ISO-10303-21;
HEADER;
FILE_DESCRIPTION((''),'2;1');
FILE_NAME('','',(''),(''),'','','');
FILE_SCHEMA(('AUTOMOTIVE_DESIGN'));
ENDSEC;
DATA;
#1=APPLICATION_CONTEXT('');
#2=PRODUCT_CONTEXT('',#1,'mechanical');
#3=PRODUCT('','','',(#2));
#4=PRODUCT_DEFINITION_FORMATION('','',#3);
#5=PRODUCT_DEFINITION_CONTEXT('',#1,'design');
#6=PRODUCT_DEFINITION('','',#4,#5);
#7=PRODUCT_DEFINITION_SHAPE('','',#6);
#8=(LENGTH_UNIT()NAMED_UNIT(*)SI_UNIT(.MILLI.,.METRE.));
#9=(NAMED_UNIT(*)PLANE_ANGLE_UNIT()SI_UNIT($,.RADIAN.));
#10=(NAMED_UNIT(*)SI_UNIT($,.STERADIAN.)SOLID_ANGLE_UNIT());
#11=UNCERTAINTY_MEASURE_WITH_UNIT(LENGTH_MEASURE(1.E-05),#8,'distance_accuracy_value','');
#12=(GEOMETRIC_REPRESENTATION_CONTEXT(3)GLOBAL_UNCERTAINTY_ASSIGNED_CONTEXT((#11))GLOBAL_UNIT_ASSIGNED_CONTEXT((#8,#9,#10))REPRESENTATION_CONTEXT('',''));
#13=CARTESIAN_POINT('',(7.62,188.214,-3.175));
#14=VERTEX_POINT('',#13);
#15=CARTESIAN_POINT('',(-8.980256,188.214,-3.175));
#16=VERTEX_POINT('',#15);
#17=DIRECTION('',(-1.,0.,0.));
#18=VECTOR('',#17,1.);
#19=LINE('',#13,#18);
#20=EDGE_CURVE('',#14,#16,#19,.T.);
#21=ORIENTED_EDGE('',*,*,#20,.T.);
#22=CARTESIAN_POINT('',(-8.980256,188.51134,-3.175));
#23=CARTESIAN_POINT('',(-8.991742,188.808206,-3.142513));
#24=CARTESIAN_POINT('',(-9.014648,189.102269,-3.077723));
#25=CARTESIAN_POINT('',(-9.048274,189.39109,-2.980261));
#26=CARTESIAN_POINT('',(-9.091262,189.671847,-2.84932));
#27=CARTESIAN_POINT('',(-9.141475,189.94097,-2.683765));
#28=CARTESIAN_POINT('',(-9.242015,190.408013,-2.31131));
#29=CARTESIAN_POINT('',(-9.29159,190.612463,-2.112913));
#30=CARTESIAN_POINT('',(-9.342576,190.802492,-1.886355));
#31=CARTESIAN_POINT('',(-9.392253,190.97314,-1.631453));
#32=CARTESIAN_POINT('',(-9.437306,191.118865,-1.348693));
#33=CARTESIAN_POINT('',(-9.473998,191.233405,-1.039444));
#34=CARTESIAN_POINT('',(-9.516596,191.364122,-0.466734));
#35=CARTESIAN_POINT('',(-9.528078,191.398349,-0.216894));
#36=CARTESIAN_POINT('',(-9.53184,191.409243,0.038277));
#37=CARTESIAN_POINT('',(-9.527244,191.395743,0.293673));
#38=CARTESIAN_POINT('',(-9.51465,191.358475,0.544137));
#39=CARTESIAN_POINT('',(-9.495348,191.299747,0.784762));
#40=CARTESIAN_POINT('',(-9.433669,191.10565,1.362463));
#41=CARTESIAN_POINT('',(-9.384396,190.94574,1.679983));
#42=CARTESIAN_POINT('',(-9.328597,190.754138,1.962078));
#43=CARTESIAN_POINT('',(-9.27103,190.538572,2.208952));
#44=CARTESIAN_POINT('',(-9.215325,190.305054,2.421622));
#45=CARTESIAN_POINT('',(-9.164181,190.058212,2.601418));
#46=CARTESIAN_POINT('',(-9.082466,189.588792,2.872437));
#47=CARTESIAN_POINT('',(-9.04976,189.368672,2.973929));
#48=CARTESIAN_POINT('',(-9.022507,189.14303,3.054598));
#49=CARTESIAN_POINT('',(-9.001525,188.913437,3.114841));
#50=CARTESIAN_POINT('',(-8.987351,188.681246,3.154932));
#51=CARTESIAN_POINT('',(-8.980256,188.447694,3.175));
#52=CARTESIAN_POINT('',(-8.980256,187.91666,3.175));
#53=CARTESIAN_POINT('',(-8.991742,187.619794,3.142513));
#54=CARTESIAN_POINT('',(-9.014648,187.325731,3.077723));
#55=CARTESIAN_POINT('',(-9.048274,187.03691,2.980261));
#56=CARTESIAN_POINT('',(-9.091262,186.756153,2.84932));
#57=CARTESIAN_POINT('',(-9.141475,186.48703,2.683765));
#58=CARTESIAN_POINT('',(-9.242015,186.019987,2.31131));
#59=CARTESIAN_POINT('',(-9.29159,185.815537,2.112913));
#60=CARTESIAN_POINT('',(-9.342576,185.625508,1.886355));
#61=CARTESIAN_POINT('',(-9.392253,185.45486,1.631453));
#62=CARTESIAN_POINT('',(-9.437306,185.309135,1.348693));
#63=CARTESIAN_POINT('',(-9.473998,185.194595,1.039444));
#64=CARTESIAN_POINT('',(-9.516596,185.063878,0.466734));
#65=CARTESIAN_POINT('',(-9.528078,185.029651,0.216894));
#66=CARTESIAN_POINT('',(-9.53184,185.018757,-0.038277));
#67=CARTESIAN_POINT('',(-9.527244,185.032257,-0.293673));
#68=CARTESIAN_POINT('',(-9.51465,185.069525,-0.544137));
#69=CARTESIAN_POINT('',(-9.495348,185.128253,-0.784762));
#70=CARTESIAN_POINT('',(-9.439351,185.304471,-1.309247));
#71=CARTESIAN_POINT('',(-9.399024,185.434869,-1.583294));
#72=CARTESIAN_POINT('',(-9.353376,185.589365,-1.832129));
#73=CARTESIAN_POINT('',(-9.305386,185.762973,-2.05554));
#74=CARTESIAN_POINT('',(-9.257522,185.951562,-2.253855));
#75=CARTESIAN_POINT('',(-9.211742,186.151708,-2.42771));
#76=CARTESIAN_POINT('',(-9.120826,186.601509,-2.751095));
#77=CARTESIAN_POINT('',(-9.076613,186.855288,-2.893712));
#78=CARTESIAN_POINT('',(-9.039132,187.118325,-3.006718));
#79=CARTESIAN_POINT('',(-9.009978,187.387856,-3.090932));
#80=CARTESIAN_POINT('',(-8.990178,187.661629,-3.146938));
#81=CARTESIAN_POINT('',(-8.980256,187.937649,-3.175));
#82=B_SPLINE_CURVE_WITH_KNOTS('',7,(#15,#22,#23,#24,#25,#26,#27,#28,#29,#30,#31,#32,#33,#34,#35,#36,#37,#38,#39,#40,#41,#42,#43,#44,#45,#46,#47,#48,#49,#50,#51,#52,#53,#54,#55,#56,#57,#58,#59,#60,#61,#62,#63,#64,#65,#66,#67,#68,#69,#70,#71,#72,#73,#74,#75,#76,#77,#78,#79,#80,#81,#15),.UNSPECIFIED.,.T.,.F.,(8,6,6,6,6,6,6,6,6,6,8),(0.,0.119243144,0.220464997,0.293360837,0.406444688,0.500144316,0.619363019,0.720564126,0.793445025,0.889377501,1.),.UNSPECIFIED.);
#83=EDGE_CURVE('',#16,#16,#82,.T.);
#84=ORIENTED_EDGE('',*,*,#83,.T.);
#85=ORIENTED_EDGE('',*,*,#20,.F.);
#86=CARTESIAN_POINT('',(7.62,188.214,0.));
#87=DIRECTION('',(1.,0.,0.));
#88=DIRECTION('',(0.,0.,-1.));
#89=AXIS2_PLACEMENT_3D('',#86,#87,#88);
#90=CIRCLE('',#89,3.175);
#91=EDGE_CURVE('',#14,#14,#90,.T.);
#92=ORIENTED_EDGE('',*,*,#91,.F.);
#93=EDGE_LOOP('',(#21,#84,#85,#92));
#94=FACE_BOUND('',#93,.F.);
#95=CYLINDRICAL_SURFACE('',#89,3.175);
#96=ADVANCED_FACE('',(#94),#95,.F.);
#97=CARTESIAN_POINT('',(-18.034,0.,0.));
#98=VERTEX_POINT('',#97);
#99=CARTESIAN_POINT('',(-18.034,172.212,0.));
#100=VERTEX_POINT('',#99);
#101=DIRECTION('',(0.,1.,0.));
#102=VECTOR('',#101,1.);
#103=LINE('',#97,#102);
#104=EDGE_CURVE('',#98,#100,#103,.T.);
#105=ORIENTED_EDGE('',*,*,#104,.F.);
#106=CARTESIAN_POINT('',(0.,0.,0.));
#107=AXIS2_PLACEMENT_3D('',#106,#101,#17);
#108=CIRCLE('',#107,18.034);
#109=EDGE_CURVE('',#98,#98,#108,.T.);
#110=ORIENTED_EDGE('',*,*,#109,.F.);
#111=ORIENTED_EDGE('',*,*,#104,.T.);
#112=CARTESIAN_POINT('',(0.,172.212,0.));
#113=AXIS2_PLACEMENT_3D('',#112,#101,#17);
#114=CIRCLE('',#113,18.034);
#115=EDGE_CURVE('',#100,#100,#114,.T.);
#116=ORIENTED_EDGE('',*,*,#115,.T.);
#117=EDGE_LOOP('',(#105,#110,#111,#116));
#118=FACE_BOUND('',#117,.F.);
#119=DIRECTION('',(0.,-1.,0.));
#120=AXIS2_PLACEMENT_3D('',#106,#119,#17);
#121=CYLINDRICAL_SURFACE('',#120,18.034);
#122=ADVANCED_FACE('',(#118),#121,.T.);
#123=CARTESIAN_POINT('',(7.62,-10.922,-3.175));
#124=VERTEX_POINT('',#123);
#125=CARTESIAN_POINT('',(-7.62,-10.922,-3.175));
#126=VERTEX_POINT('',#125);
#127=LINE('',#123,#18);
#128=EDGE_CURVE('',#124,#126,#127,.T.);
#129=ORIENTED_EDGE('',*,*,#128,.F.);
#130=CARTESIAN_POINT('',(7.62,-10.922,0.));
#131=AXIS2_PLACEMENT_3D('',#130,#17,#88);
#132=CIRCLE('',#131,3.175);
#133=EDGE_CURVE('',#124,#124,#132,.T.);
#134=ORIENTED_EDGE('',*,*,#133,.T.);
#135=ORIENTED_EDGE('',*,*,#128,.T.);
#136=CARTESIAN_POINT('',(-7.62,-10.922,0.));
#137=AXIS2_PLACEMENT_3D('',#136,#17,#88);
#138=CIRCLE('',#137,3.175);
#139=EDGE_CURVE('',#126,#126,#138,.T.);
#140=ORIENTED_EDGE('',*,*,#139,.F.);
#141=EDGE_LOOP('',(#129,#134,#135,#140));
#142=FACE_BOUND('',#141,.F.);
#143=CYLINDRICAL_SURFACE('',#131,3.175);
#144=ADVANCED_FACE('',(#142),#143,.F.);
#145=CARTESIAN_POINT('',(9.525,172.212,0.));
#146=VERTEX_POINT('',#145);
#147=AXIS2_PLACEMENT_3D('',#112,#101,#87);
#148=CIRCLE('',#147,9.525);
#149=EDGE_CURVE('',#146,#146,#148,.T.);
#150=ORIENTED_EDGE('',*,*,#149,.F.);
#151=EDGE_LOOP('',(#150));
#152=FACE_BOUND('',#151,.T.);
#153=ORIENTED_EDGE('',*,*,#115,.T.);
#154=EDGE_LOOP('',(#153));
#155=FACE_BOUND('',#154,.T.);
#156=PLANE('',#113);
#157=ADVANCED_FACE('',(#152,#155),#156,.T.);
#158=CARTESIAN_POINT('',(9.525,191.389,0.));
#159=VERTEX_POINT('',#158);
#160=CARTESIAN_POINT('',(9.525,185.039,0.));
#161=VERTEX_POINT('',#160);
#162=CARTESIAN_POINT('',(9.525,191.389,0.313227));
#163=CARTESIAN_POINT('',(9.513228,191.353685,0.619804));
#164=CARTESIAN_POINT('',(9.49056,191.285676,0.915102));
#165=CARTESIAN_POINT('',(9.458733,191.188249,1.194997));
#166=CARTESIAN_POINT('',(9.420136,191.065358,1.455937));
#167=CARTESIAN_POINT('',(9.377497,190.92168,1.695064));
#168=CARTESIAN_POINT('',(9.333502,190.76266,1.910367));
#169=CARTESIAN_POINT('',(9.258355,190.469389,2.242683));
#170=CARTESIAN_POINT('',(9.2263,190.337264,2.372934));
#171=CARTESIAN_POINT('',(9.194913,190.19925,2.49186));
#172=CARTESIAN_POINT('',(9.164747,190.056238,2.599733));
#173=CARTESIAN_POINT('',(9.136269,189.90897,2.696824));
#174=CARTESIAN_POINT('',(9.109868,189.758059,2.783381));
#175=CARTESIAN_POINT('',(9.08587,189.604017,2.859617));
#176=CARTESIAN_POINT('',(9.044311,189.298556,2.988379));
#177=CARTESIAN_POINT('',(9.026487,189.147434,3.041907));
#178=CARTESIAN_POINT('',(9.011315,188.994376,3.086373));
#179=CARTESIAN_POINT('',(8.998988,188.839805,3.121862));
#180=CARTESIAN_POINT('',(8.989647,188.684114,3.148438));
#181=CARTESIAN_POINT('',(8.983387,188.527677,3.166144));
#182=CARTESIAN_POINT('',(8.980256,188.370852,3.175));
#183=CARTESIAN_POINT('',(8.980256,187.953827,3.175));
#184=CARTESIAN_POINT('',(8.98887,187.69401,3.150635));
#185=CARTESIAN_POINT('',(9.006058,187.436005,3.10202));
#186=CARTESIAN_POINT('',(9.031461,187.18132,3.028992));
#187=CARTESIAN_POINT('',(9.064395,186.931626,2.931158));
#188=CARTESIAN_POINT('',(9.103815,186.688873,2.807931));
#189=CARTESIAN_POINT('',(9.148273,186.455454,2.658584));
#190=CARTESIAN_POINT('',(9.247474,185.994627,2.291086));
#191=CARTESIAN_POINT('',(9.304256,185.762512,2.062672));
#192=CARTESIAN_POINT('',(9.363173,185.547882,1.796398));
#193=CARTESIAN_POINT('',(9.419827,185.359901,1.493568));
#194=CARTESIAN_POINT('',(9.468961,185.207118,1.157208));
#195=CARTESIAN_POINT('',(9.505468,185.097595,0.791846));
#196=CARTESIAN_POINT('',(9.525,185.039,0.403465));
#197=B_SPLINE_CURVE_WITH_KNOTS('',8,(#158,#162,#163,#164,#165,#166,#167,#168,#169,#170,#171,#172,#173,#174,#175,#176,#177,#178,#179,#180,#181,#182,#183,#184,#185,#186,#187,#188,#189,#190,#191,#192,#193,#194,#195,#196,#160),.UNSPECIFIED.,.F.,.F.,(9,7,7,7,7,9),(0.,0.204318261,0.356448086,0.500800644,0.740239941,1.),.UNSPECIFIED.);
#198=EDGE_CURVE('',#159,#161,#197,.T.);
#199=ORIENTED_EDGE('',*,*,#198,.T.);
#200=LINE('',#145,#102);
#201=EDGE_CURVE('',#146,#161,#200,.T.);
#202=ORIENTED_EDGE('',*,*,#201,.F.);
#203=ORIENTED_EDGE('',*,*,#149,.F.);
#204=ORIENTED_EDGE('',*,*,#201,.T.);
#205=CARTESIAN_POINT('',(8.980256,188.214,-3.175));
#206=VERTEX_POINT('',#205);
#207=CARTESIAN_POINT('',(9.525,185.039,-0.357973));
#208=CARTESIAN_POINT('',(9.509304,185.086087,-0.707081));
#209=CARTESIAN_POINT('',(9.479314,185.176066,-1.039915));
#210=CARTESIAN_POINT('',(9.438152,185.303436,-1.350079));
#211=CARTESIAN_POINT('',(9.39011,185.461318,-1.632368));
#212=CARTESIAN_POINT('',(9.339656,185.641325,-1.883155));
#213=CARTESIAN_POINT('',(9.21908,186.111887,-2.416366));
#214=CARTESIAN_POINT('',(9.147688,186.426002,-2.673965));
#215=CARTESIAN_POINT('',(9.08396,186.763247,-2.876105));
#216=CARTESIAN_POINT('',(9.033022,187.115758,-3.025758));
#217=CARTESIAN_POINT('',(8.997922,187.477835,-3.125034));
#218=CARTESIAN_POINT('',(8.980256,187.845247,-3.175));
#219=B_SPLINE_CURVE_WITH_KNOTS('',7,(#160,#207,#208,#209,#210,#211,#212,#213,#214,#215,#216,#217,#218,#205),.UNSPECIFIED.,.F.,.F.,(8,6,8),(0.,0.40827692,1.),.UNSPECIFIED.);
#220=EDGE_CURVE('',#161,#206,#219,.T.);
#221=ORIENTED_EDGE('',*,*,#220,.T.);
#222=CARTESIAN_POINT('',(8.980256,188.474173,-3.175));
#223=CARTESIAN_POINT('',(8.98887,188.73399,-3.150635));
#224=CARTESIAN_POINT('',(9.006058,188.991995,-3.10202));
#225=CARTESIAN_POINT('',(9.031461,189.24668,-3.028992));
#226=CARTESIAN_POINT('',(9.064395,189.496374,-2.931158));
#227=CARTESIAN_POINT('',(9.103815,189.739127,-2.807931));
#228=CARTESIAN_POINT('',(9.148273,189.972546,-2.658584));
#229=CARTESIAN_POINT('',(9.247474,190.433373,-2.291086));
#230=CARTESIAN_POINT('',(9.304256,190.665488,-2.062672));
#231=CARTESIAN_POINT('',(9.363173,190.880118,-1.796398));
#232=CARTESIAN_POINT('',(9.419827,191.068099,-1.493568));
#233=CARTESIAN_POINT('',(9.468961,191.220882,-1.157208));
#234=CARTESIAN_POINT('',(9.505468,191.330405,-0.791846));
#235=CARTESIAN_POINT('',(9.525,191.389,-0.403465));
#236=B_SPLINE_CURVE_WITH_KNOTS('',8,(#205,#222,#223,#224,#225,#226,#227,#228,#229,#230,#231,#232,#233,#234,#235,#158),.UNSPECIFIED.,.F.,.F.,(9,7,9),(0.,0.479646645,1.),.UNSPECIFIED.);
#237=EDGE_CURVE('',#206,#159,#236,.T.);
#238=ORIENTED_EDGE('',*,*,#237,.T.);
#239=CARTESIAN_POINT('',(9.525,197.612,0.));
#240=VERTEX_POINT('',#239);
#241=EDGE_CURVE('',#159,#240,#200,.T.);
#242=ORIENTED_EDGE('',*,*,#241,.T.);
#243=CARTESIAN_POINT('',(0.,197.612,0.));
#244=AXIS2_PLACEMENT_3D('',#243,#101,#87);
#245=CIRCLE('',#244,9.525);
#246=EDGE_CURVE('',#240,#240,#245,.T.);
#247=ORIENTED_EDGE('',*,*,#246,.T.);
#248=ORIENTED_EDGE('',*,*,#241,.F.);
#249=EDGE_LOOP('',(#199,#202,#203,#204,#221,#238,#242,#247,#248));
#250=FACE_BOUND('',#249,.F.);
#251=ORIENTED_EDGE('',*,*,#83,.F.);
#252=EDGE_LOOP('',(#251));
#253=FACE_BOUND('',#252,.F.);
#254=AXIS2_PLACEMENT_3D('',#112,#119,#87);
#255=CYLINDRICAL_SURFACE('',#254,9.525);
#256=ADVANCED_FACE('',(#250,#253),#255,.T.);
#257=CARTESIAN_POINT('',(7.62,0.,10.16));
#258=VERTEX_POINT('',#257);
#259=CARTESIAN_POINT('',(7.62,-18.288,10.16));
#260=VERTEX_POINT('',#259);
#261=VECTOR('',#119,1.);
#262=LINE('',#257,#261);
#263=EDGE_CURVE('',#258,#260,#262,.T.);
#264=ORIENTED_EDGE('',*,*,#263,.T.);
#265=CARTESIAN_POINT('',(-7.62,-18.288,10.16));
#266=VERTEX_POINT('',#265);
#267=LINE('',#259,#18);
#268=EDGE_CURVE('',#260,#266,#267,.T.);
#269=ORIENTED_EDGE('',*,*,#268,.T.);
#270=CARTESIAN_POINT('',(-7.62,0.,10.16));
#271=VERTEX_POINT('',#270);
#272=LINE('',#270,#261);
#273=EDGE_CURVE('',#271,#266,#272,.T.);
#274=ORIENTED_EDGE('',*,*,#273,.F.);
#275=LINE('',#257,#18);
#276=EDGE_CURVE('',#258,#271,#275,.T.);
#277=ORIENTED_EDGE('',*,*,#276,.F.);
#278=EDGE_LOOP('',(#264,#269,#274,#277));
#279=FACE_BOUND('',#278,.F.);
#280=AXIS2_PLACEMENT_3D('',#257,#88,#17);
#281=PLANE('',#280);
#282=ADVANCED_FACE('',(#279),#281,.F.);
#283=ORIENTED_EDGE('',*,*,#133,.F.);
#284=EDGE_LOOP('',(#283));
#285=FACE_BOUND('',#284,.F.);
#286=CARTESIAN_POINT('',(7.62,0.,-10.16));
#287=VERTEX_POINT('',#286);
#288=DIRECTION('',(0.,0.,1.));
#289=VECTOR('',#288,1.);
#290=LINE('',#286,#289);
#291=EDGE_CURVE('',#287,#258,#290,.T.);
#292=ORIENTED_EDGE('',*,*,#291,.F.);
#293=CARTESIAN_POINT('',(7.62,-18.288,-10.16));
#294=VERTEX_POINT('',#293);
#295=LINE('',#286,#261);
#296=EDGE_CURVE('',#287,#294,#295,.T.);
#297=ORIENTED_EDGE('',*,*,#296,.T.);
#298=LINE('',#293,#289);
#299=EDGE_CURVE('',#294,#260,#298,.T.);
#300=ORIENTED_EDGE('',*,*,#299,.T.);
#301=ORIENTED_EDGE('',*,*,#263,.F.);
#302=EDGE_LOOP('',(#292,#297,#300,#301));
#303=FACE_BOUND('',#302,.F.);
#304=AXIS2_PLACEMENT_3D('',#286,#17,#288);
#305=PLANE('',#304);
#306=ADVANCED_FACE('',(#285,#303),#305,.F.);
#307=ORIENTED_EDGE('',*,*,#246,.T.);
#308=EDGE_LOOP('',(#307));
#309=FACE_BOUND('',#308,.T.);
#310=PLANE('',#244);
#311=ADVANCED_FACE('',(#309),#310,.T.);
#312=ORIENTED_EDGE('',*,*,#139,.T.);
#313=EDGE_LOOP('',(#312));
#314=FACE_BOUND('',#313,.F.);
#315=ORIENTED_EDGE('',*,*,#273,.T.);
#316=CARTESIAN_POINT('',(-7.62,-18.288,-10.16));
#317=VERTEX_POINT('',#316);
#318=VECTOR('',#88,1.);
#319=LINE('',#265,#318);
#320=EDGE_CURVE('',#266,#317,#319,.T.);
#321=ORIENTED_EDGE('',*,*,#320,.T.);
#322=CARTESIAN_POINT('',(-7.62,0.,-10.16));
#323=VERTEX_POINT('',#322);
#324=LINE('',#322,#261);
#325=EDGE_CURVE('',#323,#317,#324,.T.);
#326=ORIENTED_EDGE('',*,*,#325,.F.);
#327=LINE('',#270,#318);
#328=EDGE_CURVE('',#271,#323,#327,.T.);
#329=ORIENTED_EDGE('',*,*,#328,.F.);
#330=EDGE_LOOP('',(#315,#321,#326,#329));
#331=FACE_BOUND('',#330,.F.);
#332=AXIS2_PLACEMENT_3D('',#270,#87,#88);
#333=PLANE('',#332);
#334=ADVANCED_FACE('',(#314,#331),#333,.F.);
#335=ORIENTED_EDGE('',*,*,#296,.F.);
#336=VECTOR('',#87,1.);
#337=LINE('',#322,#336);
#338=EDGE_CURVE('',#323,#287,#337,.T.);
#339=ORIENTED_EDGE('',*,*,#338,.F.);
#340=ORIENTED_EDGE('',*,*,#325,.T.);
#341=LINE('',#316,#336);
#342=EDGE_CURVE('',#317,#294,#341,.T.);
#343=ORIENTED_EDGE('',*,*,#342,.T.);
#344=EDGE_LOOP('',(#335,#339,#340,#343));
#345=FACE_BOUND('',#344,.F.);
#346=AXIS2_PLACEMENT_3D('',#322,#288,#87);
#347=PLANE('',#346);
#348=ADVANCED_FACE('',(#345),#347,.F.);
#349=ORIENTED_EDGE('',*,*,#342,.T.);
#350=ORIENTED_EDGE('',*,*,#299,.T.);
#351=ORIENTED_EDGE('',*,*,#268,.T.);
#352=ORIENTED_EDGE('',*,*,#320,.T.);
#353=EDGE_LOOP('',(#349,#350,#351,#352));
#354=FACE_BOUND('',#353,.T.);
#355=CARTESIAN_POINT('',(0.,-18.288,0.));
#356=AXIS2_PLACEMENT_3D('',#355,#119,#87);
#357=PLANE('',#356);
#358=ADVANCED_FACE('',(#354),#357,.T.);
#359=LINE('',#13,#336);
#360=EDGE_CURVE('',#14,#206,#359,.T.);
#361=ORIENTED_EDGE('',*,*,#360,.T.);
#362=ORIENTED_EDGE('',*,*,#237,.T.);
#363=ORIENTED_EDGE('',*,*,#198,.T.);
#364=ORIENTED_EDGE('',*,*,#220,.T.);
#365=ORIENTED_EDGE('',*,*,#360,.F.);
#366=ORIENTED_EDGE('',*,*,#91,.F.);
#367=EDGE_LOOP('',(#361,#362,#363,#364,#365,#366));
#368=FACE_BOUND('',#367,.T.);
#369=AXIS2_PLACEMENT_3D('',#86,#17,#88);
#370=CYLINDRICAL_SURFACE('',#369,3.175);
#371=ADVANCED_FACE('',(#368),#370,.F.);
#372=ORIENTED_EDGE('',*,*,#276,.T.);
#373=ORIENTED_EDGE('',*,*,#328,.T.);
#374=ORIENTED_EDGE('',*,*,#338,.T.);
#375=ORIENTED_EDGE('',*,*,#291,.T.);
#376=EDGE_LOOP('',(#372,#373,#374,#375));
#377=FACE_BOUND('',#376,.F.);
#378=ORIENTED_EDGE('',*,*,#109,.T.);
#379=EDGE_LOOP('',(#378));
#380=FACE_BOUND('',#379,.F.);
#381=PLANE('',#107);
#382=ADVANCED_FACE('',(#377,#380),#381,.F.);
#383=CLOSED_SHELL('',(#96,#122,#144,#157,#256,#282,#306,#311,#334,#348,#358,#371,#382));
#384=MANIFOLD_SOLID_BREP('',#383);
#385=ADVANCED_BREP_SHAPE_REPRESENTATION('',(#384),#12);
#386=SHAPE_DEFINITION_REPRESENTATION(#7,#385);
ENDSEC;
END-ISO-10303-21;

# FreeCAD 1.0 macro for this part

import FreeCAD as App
import Part
import Sketcher
Q = App.Units.Quantity


def add_polygon(sketch, points):
    """Adds a closed chain of lines whose ends are joined by coincident constraints."""
    first, n = sketch.GeometryCount, len(points)
    for a, b in zip(points, points[1:] + points[:1]):
        sketch.addGeometry(Part.LineSegment(App.Vector(*a, 0), App.Vector(*b, 0)), False)
    for i in range(n):
        sketch.addConstraint(Sketcher.Constraint("Coincident", first + i, 2, first + (i + 1) % n, 1))

doc = App.newDocument("Part")
params = doc.addObject("Spreadsheet::Sheet", "Params")
for row, (alias, value) in enumerate([
    ("sketch1_diameter", "1.42 in"),
    ("pad1_length", "6.78 in"),
    ("sketch2_diameter", "0.75 in"),
    ("pad2_length", "1 in"),
    ("sketch3_width", "0.6 in"),
    ("sketch3_height", "0.8 in"),
    ("pad3_length", "0.72 in"),
    ("sketch4_diameter", "0.25 in"),
    ("hole_diameter", "0.25 in"),
    ("sketch5_diameter", "0.25 in"),
    ("pocket1_length", "5 in"),
], start=1):
    params.set(f"A{row}", alias)
    params.set(f"B{row}", "=" + value)
    params.setAlias(f"B{row}", alias)

body = doc.addObject("PartDesign::Body", "Body")

# Sketch on XZ plane
sketch1 = body.newObject("Sketcher::SketchObject", "Sketch")
sketch1.AttachmentSupport = (doc.getObject("XZ_Plane"), [""])
sketch1.MapMode = "FlatFace"
sketch1.addGeometry(Part.Circle(App.Vector(0, 0, 0), App.Vector(0, 0, 1), 18), False)
sketch1.addConstraint(Sketcher.Constraint("Coincident", 0, 3, -1, 1))
sketch1.addConstraint(Sketcher.Constraint("Diameter", 0, Q("1.42 in")))
sketch1.setExpression("Constraints[1]", "Params.sketch1_diameter")
pad1 = body.newObject("PartDesign::Pad", "Pad")
pad1.Profile = sketch1
pad1.setExpression("Length", "Params.pad1_length")
pad1.Reversed = True

# Sketch on XZ plane
sketch2 = body.newObject("Sketcher::SketchObject", "Sketch001")
sketch2.AttachmentSupport = (doc.getObject("XZ_Plane"), [""])
sketch2.MapMode = "FlatFace"
sketch2.AttachmentOffset = App.Placement(App.Vector(0, 0, -6.78 * 25.4), App.Rotation())
sketch2.addGeometry(Part.Circle(App.Vector(0, 0, 0), App.Vector(0, 0, 1), 10), False)
sketch2.addConstraint(Sketcher.Constraint("Coincident", 0, 3, -1, 1))
sketch2.addConstraint(Sketcher.Constraint("Diameter", 0, Q("0.75 in")))
sketch2.setExpression("Constraints[1]", "Params.sketch2_diameter")
pad2 = body.newObject("PartDesign::Pad", "Pad001")
pad2.Profile = sketch2
pad2.setExpression("Length", "Params.pad2_length")
pad2.Reversed = True

# Sketch on XZ plane
sketch3 = body.newObject("Sketcher::SketchObject", "Sketch002")
sketch3.AttachmentSupport = (doc.getObject("XZ_Plane"), [""])
sketch3.MapMode = "FlatFace"
add_polygon(sketch3, [(-8, 10), (-8, -10), (8, -10), (8, 10)])  # lines 0-3
sketch3.addConstraint(Sketcher.Constraint("Vertical", 0))
sketch3.addConstraint(Sketcher.Constraint("Horizontal", 1))
sketch3.addConstraint(Sketcher.Constraint("Vertical", 2))
sketch3.addConstraint(Sketcher.Constraint("Horizontal", 3))
sketch3.addConstraint(Sketcher.Constraint("Symmetric", 0, 2, 2, 2, -1, 1))
sketch3.addConstraint(Sketcher.Constraint("DistanceX", 1, 1, 1, 2, Q("0.6 in")))
sketch3.addConstraint(Sketcher.Constraint("DistanceY", 0, 2, 0, 1, Q("0.8 in")))
sketch3.setExpression("Constraints[9]", "Params.sketch3_width")
sketch3.setExpression("Constraints[10]", "Params.sketch3_height")
pad3 = body.newObject("PartDesign::Pad", "Pad002")
pad3.Profile = sketch3
pad3.setExpression("Length", "Params.pad3_length")

# Sketch on YZ plane
sketch4 = body.newObject("Sketcher::SketchObject", "Sketch003")
sketch4.AttachmentSupport = (doc.getObject("YZ_Plane"), [""])
sketch4.MapMode = "FlatFace"
sketch4.AttachmentOffset = App.Placement(App.Vector(0, 0, 0.3 * 25.4), App.Rotation())
sketch4.addGeometry(Part.Circle(App.Vector(-10.9, 0, 0), App.Vector(0, 0, 1), 3.2), False)
sketch4.addConstraint(Sketcher.Constraint("PointOnObject", 0, 3, -1))
sketch4.addConstraint(Sketcher.Constraint("Diameter", 0, Q("0.25 in")))
sketch4.addConstraint(Sketcher.Constraint("DistanceX", 0, 3, -1, 1, Q("0.43 in")))
sketch4.setExpression("Constraints[1]", "Params.sketch4_diameter")
doc.recompute()
hole = body.newObject("PartDesign::Hole", "Hole")
hole.Profile = sketch4
hole.ThreadType = "None"
hole.setExpression("Diameter", "Params.hole_diameter")
hole.DepthType = "ThroughAll"

# Sketch on YZ plane
sketch5 = body.newObject("Sketcher::SketchObject", "Sketch004")
sketch5.AttachmentSupport = (doc.getObject("YZ_Plane"), [""])
sketch5.MapMode = "FlatFace"
sketch5.AttachmentOffset = App.Placement(App.Vector(0, 0, 0.3 * 25.4), App.Rotation())
sketch5.addGeometry(Part.Circle(App.Vector(188.2, 0, 0), App.Vector(0, 0, 1), 3.2), False)
sketch5.addConstraint(Sketcher.Constraint("PointOnObject", 0, 3, -1))
sketch5.addConstraint(Sketcher.Constraint("Diameter", 0, Q("0.25 in")))
sketch5.addConstraint(Sketcher.Constraint("DistanceX", -1, 1, 0, 3, Q("7.41 in")))
sketch5.setExpression("Constraints[1]", "Params.sketch5_diameter")
pocket1 = body.newObject("PartDesign::Pocket", "Pocket")
pocket1.Profile = sketch5
pocket1.setExpression("Length", "Params.pocket1_length")
pocket1.Midplane = True

doc.recompute()
